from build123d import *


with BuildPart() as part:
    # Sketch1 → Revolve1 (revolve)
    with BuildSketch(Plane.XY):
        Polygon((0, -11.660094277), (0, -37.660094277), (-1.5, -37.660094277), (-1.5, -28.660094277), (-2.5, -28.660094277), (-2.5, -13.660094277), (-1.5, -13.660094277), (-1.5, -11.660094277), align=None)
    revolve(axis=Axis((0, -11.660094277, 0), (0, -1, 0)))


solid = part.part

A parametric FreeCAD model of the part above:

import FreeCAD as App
import Part
import Sketcher


def add_polygon(sketch, points):
    """Adds a closed chain of lines whose ends are joined by coincident constraints."""
    first, n = sketch.GeometryCount, len(points)
    for a, b in zip(points, points[1:] + points[:1]):
        sketch.addGeometry(Part.LineSegment(App.Vector(*a, 0), App.Vector(*b, 0)), False)
    for i in range(n):
        sketch.addConstraint(Sketcher.Constraint("Coincident", first + i, 2, first + (i + 1) % n, 1))

doc = App.newDocument("Part")
body = doc.addObject("PartDesign::Body", "Body")

sketch1 = body.newObject("Sketcher::SketchObject", "Sketch")
sketch1.AttachmentSupport = (doc.getObject("XY_Plane"), [""])
sketch1.MapMode = "FlatFace"
add_polygon(sketch1, [(0, -37.7), (0, -11.7), (-1.5, -11.7), (-1.5, -13.7), (-2.5, -13.7), (-2.5, -28.7), (-1.5, -28.7), (-1.5, -37.7)])
sketch1.addConstraint([
    Sketcher.Constraint("Vertical", 0),
    Sketcher.Constraint("Horizontal", 1),
    Sketcher.Constraint("Vertical", 2),
    Sketcher.Constraint("Horizontal", 3),
    Sketcher.Constraint("Vertical", 4),
    Sketcher.Constraint("Horizontal", 5),
    Sketcher.Constraint("Vertical", 6),
    Sketcher.Constraint("Horizontal", 7),
    Sketcher.Constraint("PointOnObject", 0, 2, -2),
    Sketcher.Constraint("Vertical", 2, 2, 5, 2),
    Sketcher.Constraint("DistanceX", 3, 2, 3, 1, 1.0),
    Sketcher.Constraint("DistanceY", 0, 1, 0, 2, 26.0),
    Sketcher.Constraint("DistanceY", 2, 2, 2, 1, 2.0),
    Sketcher.Constraint("DistanceY", 4, 2, 4, 1, 15.0),
    Sketcher.Constraint("DistanceX", 1, 2, 1, 1, 1.5),
    Sketcher.Constraint("DistanceY", 0, 2, -1, 1, 11.660094),
])
revolution = body.newObject("PartDesign::Revolution", "Revolution")
revolution.Profile = sketch1
revolution.ReferenceAxis = (sketch1, ["V_Axis"])
revolution.Angle = 360

doc.recompute()
